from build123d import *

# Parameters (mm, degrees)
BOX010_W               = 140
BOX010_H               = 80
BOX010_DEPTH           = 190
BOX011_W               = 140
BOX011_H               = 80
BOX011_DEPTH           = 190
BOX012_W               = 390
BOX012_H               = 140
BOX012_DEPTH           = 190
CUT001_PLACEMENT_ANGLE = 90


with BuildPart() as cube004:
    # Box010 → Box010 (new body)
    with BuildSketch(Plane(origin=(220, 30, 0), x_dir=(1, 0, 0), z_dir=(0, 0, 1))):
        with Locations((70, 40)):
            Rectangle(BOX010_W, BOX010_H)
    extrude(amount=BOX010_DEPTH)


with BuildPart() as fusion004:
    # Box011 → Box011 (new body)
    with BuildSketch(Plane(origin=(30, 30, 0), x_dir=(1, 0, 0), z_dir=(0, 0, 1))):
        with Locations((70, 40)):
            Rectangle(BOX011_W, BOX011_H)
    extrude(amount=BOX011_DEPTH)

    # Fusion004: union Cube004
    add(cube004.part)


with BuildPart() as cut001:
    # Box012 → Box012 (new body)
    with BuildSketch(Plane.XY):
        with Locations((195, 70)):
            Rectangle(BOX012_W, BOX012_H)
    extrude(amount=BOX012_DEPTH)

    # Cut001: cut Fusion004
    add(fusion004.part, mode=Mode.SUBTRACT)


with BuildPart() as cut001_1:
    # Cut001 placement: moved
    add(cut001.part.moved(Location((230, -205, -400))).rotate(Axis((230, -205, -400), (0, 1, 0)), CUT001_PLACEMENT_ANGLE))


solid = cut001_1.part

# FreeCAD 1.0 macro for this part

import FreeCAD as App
import Part
import Sketcher


def add_polygon(sketch, points):
    """Adds a closed chain of lines whose ends are joined by coincident constraints."""
    first, n = sketch.GeometryCount, len(points)
    for a, b in zip(points, points[1:] + points[:1]):
        sketch.addGeometry(Part.LineSegment(App.Vector(*a, 0), App.Vector(*b, 0)), False)
    for i in range(n):
        sketch.addConstraint(Sketcher.Constraint("Coincident", first + i, 2, first + (i + 1) % n, 1))

doc = App.newDocument("Part")
params = doc.addObject("Spreadsheet::Sheet", "Params")
for row, (alias, value) in enumerate([
    ("sketch1_width", "140 mm"),
    ("sketch1_height", "80 mm"),
    ("pad1_length", "190 mm"),
    ("sketch2_width", "140 mm"),
    ("sketch2_height", "80 mm"),
    ("pad2_length", "190 mm"),
    ("sketch3_width", "390 mm"),
    ("sketch3_height", "140 mm"),
    ("pad3_length", "190 mm"),
], start=1):
    params.set(f"A{row}", alias)
    params.set(f"B{row}", "=" + value)
    params.setAlias(f"B{row}", alias)

body = doc.addObject("PartDesign::Body", "Body")

sketch1 = body.newObject("Sketcher::SketchObject", "Sketch")
sketch1.AttachmentSupport = (doc.getObject("XY_Plane"), [""])
sketch1.MapMode = "FlatFace"
add_polygon(sketch1, [(220, 110), (220, 30), (360, 30), (360, 110)])
sketch1.addConstraint(Sketcher.Constraint("Vertical", 0))
sketch1.addConstraint(Sketcher.Constraint("Horizontal", 1))
sketch1.addConstraint(Sketcher.Constraint("Vertical", 2))
sketch1.addConstraint(Sketcher.Constraint("Horizontal", 3))
sketch1.addConstraint(Sketcher.Constraint("DistanceX", 1, 1, 1, 2, 140.0))
sketch1.addConstraint(Sketcher.Constraint("DistanceY", 0, 2, 0, 1, 80.0))
sketch1.addConstraint(Sketcher.Constraint("DistanceX", -1, 1, 0, 2, 220.0))
sketch1.addConstraint(Sketcher.Constraint("DistanceY", -1, 1, 0, 2, 30.0))
sketch1.setExpression("Constraints[8]", "Params.sketch1_width")
sketch1.setExpression("Constraints[9]", "Params.sketch1_height")
pad1 = body.newObject("PartDesign::Pad", "Pad")
pad1.Profile = sketch1
pad1.setExpression("Length", "Params.pad1_length")
body2 = doc.addObject("PartDesign::Body", "Body001")
body2.AllowCompound = True

sketch2 = body2.newObject("Sketcher::SketchObject", "Sketch001")
sketch2.AttachmentSupport = (doc.getObject("XY_Plane001"), [""])
sketch2.MapMode = "FlatFace"
add_polygon(sketch2, [(30, 110), (30, 30), (170, 30), (170, 110)])
sketch2.addConstraint(Sketcher.Constraint("Vertical", 0))
sketch2.addConstraint(Sketcher.Constraint("Horizontal", 1))
sketch2.addConstraint(Sketcher.Constraint("Vertical", 2))
sketch2.addConstraint(Sketcher.Constraint("Horizontal", 3))
sketch2.addConstraint(Sketcher.Constraint("DistanceX", 1, 1, 1, 2, 140.0))
sketch2.addConstraint(Sketcher.Constraint("DistanceY", 0, 2, 0, 1, 80.0))
sketch2.addConstraint(Sketcher.Constraint("DistanceX", -1, 1, 0, 2, 30.0))
sketch2.addConstraint(Sketcher.Constraint("DistanceY", -1, 1, 0, 2, 30.0))
sketch2.setExpression("Constraints[8]", "Params.sketch2_width")
sketch2.setExpression("Constraints[9]", "Params.sketch2_height")
pad2 = body2.newObject("PartDesign::Pad", "Pad001")
pad2.Profile = sketch2
pad2.setExpression("Length", "Params.pad2_length")
doc.recompute()

boolean = body2.newObject("PartDesign::Boolean", "Boolean")
boolean.Type = "Fuse"
boolean.addObjects([body])
body3 = doc.addObject("PartDesign::Body", "Body002")

sketch3 = body3.newObject("Sketcher::SketchObject", "Sketch002")
sketch3.AttachmentSupport = (doc.getObject("XY_Plane002"), [""])
sketch3.MapMode = "FlatFace"
add_polygon(sketch3, [(0, 140), (0, 0), (390, 0), (390, 140)])
sketch3.addConstraint(Sketcher.Constraint("Vertical", 0))
sketch3.addConstraint(Sketcher.Constraint("Horizontal", 1))
sketch3.addConstraint(Sketcher.Constraint("Vertical", 2))
sketch3.addConstraint(Sketcher.Constraint("Horizontal", 3))
sketch3.addConstraint(Sketcher.Constraint("Coincident", 0, 2, -1, 1))
sketch3.addConstraint(Sketcher.Constraint("DistanceX", 1, 1, 1, 2, 390.0))
sketch3.addConstraint(Sketcher.Constraint("DistanceY", 0, 2, 0, 1, 140.0))
sketch3.setExpression("Constraints[9]", "Params.sketch3_width")
sketch3.setExpression("Constraints[10]", "Params.sketch3_height")
pad3 = body3.newObject("PartDesign::Pad", "Pad002")
pad3.Profile = sketch3
pad3.setExpression("Length", "Params.pad3_length")
doc.recompute()

boolean2 = body3.newObject("PartDesign::Boolean", "Boolean001")
boolean2.Type = "Cut"
boolean2.addObjects([body2])
body4 = doc.addObject("PartDesign::Body", "Body003")
doc.recompute()

body3.Placement = App.Placement(App.Vector(230, -205, -400), App.Rotation(App.Vector(0, 1, 0), 90))
boolean3 = body4.newObject("PartDesign::Boolean", "Boolean002")
boolean3.Type = "Fuse"
boolean3.addObjects([body3])

doc.recompute()
